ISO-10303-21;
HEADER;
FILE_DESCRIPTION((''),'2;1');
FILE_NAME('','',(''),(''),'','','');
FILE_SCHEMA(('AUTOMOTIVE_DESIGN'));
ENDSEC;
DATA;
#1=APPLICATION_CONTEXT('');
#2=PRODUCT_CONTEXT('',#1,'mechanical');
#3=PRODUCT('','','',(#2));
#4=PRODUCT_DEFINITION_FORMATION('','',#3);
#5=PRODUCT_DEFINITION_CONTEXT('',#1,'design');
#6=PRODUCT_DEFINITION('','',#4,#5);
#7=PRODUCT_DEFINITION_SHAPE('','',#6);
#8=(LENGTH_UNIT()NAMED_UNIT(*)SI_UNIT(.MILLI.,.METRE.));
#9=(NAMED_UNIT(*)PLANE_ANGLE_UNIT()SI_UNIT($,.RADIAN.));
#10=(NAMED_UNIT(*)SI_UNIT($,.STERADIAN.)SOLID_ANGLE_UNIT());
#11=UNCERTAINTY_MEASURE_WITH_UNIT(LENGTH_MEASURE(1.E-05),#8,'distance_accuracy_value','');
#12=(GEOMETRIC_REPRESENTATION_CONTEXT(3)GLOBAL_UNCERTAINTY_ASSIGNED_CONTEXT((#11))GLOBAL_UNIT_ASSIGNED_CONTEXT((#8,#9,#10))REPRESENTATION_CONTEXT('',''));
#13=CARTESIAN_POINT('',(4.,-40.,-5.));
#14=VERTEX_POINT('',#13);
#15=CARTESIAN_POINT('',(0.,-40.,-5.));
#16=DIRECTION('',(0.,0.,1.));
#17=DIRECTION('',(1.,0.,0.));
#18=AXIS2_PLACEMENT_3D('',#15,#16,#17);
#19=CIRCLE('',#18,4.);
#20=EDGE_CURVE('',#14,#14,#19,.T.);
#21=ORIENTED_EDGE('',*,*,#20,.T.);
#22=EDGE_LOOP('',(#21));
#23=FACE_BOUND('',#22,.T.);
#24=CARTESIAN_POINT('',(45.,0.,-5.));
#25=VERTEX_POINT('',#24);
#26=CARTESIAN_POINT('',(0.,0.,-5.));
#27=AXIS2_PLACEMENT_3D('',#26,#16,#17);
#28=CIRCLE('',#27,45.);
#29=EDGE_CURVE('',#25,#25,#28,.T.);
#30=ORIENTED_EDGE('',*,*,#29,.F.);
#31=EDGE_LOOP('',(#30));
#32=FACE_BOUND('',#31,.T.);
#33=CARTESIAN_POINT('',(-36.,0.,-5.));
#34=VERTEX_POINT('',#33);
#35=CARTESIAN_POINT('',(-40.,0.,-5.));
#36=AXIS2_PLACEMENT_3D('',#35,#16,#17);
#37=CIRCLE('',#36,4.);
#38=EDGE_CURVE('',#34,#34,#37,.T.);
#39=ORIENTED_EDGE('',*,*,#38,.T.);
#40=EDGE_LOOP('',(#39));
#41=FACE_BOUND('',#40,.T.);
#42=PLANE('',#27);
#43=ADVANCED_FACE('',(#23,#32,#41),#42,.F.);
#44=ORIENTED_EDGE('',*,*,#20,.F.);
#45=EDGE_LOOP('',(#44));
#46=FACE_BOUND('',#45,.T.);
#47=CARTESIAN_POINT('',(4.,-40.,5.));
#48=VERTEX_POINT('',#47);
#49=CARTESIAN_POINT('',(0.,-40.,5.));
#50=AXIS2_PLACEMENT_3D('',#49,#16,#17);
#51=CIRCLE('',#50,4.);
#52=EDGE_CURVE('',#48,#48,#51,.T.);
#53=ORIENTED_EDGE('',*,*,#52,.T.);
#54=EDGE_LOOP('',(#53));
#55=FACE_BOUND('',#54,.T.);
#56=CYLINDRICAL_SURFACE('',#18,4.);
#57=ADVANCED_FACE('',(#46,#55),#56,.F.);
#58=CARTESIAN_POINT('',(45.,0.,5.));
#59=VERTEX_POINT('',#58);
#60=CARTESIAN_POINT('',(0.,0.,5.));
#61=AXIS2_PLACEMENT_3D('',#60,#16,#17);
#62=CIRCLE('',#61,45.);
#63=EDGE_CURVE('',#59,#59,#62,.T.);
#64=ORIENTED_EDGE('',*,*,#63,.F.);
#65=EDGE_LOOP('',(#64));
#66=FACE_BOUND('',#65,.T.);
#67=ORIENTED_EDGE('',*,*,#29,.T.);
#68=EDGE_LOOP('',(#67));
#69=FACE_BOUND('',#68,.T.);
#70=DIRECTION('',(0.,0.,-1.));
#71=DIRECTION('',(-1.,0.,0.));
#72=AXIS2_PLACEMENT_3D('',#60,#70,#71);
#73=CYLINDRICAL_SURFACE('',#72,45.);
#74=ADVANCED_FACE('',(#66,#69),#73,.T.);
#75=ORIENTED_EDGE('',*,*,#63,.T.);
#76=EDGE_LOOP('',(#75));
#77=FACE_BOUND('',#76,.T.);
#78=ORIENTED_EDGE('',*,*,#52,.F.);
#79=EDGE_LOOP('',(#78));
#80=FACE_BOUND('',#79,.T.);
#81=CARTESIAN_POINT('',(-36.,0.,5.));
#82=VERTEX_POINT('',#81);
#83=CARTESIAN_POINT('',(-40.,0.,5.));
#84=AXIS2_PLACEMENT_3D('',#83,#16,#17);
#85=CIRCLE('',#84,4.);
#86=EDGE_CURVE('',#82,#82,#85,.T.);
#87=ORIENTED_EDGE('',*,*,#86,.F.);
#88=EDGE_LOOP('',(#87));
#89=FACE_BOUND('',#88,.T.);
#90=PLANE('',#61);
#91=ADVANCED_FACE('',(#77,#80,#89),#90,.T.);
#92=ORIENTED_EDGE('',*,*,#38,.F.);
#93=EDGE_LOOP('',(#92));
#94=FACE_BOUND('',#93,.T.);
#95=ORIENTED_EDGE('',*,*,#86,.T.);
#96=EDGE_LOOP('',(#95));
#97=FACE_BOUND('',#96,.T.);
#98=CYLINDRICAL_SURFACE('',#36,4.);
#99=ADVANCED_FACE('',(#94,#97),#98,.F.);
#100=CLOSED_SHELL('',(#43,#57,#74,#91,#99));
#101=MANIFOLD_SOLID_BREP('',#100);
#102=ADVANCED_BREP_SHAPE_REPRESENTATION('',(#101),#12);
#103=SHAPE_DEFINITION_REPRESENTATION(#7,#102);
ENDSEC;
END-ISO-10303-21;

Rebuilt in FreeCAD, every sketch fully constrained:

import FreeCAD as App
import Part
import Sketcher
from FreeCAD import Vector

doc = App.newDocument("Part")
body = doc.addObject("PartDesign::Body", "Body")

# Sketch on XY plane
sketch1 = doc.addObject("Sketcher::SketchObject", "Sketch")
body.addObject(sketch1)
sketch1.AttachmentSupport = (doc.XY_Plane, [""])
sketch1.MapMode = "FlatFace"
sketch1.addGeometry(Part.Circle(Vector(0, 0, 0), Vector(0, 0, 1), 45), False)
sketch1.addConstraint([
    Sketcher.Constraint("Coincident", 0, 3, -1, 1),
    Sketcher.Constraint("Diameter", 0, 90.0),
])
pad1 = doc.addObject("PartDesign::Pad", "Pad")
body.addObject(pad1)
pad1.Profile = sketch1
pad1.Length = 10
pad1.Midplane = True

# Sketch on XY plane
sketch2 = doc.addObject("Sketcher::SketchObject", "Sketch001")
body.addObject(sketch2)
sketch2.AttachmentSupport = (doc.XY_Plane, [""])
sketch2.MapMode = "FlatFace"
sketch2.AttachmentOffset = App.Placement(Vector(0, 0, 5), App.Rotation())
sketch2.addGeometry([
    Part.Circle(Vector(-40, 0, 0), Vector(0, 0, 1), 4),
    Part.Circle(Vector(0, -40, 0), Vector(0, 0, 1), 4),
], False)
sketch2.addConstraint([
    Sketcher.Constraint("Equal", 0, 1),
    Sketcher.Constraint("PointOnObject", 0, 3, -1),
    Sketcher.Constraint("PointOnObject", 1, 3, -2),
    Sketcher.Constraint("Diameter", 0, 8.0),
    Sketcher.Constraint("DistanceX", 0, 3, -1, 1, 40.0),
    Sketcher.Constraint("DistanceY", 1, 3, -1, 1, 40.0),
])
pocket1 = doc.addObject("PartDesign::Pocket", "Pocket")
body.addObject(pocket1)
pocket1.Profile = sketch2
pocket1.Length = 10

doc.recompute()
